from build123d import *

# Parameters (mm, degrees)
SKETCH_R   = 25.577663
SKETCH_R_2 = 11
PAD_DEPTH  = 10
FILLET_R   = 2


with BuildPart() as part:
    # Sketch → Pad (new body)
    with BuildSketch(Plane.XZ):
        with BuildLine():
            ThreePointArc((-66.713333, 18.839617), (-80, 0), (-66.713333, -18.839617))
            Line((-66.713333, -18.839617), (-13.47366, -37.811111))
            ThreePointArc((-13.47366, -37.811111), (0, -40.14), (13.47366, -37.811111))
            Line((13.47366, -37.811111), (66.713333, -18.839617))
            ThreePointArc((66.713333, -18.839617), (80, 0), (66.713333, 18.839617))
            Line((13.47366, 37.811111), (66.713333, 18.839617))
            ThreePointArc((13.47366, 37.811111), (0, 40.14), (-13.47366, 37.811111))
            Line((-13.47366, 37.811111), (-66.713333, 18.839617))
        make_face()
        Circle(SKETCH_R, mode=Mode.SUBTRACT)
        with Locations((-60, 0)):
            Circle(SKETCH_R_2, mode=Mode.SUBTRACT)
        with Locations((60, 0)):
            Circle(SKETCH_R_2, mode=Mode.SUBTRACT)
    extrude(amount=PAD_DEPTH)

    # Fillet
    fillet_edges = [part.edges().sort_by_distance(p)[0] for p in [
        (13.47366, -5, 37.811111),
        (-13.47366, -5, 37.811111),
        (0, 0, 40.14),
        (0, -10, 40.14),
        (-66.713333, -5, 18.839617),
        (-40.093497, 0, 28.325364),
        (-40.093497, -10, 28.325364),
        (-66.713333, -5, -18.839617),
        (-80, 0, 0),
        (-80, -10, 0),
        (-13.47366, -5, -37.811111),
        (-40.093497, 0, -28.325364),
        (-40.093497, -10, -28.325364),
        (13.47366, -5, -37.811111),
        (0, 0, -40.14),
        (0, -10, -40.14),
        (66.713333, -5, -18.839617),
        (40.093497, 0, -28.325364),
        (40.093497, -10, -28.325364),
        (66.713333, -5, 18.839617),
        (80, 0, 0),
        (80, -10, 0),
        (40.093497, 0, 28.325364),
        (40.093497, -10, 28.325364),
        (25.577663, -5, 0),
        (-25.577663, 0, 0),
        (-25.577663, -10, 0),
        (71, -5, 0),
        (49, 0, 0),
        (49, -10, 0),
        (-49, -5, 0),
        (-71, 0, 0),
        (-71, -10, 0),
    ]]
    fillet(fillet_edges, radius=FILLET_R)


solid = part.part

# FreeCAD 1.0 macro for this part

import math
import FreeCAD as App
import Part
import Sketcher
Q = App.Units.Quantity

doc = App.newDocument("Part")
body = doc.addObject("PartDesign::Body", "Body")

sketch1 = body.newObject("Sketcher::SketchObject", "Sketch")
sketch1.AttachmentSupport = (doc.getObject("XZ_Plane"), [""])
sketch1.MapMode = "FlatFace"
sketch1.addGeometry([
    Part.ArcOfCircle(Part.Circle(App.Vector(-60, 0, 0), App.Vector(0, 0, 1), 20), math.radians(109.613082), math.radians(250.386918)),
    Part.LineSegment(App.Vector(-66.713333, -18.839617, 0), App.Vector(-13.47366, -37.811111, 0)),
    Part.ArcOfCircle(Part.Circle(App.Vector(0, 0.000006, 0), App.Vector(0, 0, 1), 40.140006), math.radians(-109.61308), math.radians(-70.38692)),
    Part.LineSegment(App.Vector(13.47366, -37.811111, 0), App.Vector(66.713333, -18.839617, 0)),
    Part.ArcOfCircle(Part.Circle(App.Vector(60, 0, 0), App.Vector(0, 0, 1), 20), math.radians(-70.386918), math.radians(70.386918)),
    Part.LineSegment(App.Vector(66.713333, 18.839617, 0), App.Vector(13.47366, 37.811111, 0)),
    Part.ArcOfCircle(Part.Circle(App.Vector(0, -0.000006, 0), App.Vector(0, 0, 1), 40.140006), math.radians(70.38692), math.radians(109.61308)),
    Part.LineSegment(App.Vector(-13.47366, 37.811111, 0), App.Vector(-66.713333, 18.839617, 0)),
    Part.Circle(App.Vector(-60, 0, 0), App.Vector(0, 0, 1), 11),
    Part.Circle(App.Vector(0, 0, 0), App.Vector(0, 0, 1), 25.577663),
    Part.Circle(App.Vector(60, 0, 0), App.Vector(0, 0, 1), 11),
], False)
sketch1.addConstraint([
    Sketcher.Constraint("Tangent", 0, 2, 1, 1),
    Sketcher.Constraint("Tangent", 1, 2, 2, 1),
    Sketcher.Constraint("Tangent", 2, 2, 3, 1),
    Sketcher.Constraint("Tangent", 3, 2, 4, 1),
    Sketcher.Constraint("Tangent", 4, 2, 5, 1),
    Sketcher.Constraint("Tangent", 5, 2, 6, 1),
    Sketcher.Constraint("Tangent", 6, 2, 7, 1),
    Sketcher.Constraint("Tangent", 7, 2, 0, 1),
    Sketcher.Constraint("Coincident", 2, 3, -1, 1),
    Sketcher.Constraint("Coincident", 6, 3, -1, 1),
    Sketcher.Constraint("Coincident", 9, 3, -1, 1),
    Sketcher.Constraint("Coincident", 8, 3, 0, 3),
    Sketcher.Constraint("Coincident", 10, 3, 4, 3),
    Sketcher.Constraint("Equal", 0, 4),
    Sketcher.Constraint("Equal", 2, 6),
    Sketcher.Constraint("Equal", 8, 10),
    Sketcher.Constraint("Symmetric", 0, 3, 4, 3, -1, 1),
    Sketcher.Constraint("PointOnObject", 0, 3, -1),
    Sketcher.Constraint("Diameter", 8, Q("22 mm")),
    Sketcher.Constraint("Radius", 0, Q("20 mm")),
    Sketcher.Constraint("DistanceX", 0, 3, -1, 1, Q("60 mm")),
    Sketcher.Constraint("Diameter", 9, Q("51.155326 mm")),
    Sketcher.Constraint("Radius", 2, Q("40.140006 mm")),
])
pad1 = body.newObject("PartDesign::Pad", "Pad")
pad1.Profile = sketch1
pad1.Length = 10
doc.recompute()

fillet = body.newObject("PartDesign::Fillet", "Fillet")
fillet.Base = (pad1, ["Edge1"])
fillet.UseAllEdges = True
fillet.Radius = 2

doc.recompute()
